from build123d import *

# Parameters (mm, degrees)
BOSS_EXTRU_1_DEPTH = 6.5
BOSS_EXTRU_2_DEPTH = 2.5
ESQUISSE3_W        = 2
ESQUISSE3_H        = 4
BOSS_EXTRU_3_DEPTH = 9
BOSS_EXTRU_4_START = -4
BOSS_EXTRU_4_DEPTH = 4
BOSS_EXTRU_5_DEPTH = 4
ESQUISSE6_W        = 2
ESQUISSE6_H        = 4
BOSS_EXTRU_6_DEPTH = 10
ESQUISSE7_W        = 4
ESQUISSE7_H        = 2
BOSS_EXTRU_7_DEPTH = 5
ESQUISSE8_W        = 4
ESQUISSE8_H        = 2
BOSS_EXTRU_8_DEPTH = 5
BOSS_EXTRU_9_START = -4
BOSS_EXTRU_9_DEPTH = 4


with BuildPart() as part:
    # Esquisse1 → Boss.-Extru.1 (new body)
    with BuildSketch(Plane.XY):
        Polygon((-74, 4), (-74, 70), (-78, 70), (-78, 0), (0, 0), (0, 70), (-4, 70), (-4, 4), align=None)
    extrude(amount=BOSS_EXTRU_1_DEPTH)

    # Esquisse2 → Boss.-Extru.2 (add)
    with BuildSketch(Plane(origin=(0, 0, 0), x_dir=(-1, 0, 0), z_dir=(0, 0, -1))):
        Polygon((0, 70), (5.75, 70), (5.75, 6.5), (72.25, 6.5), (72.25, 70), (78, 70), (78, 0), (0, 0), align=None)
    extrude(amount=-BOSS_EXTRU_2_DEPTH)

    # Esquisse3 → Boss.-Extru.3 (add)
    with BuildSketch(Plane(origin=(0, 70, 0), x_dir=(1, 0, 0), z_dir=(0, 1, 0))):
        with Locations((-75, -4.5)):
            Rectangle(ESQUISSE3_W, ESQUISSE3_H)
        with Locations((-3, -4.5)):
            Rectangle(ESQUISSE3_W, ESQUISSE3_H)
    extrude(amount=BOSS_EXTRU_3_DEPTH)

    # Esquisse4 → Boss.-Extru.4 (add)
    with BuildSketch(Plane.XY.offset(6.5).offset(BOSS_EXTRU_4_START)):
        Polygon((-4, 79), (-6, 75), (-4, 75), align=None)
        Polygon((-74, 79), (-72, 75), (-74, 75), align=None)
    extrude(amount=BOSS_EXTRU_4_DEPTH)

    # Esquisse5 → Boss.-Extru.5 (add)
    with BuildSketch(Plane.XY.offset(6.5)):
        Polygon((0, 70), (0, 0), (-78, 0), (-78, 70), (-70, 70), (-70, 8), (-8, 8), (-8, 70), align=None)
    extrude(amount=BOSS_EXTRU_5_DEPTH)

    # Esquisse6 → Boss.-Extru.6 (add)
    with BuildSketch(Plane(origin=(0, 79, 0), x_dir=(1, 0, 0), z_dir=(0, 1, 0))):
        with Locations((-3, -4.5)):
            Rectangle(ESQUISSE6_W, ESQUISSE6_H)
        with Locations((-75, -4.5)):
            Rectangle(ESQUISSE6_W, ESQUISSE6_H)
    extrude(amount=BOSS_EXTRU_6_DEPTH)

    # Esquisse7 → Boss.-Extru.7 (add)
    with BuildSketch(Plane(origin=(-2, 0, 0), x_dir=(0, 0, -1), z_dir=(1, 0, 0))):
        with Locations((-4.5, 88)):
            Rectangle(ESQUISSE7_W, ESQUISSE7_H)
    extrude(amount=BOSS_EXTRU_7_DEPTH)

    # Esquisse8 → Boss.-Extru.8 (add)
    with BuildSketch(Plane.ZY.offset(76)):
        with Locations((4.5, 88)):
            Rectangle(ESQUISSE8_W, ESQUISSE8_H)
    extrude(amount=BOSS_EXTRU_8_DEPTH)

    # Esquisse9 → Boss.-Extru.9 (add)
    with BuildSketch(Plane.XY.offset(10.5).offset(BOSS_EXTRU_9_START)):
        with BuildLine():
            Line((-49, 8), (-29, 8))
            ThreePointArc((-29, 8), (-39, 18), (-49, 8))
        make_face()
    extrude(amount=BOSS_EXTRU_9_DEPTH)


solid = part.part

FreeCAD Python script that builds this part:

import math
import FreeCAD as App
import Part
import Sketcher
Q = App.Units.Quantity


def add_polygon(sketch, points):
    """Adds a closed chain of lines whose ends are joined by coincident constraints."""
    first, n = sketch.GeometryCount, len(points)
    for a, b in zip(points, points[1:] + points[:1]):
        sketch.addGeometry(Part.LineSegment(App.Vector(*a, 0), App.Vector(*b, 0)), False)
    for i in range(n):
        sketch.addConstraint(Sketcher.Constraint("Coincident", first + i, 2, first + (i + 1) % n, 1))

doc = App.newDocument("Part")
body = doc.addObject("PartDesign::Body", "Body")

# Sketch on XY plane
sketch1 = body.newObject("Sketcher::SketchObject", "Sketch")
sketch1.AttachmentSupport = (doc.getObject("XY_Plane"), [""])
sketch1.MapMode = "FlatFace"
add_polygon(sketch1, [(-74, 4), (-74, 70), (-78, 70), (-78, 0), (0, 0), (0, 70), (-4, 70), (-4, 4)])  # lines 0-7
sketch1.addConstraint(Sketcher.Constraint("Vertical", 0))
sketch1.addConstraint(Sketcher.Constraint("Horizontal", 1))
sketch1.addConstraint(Sketcher.Constraint("Vertical", 2))
sketch1.addConstraint(Sketcher.Constraint("Horizontal", 3))
sketch1.addConstraint(Sketcher.Constraint("Vertical", 4))
sketch1.addConstraint(Sketcher.Constraint("Horizontal", 5))
sketch1.addConstraint(Sketcher.Constraint("Vertical", 6))
sketch1.addConstraint(Sketcher.Constraint("Horizontal", 7))
sketch1.addConstraint(Sketcher.Constraint("Coincident", 3, 2, -1, 1))
sketch1.addConstraint(Sketcher.Constraint("Horizontal", 1, 2, 4, 2))
sketch1.addConstraint(Sketcher.Constraint("Equal", 1, 5))
sketch1.addConstraint(Sketcher.Constraint("Equal", 7, 2))
sketch1.addConstraint(Sketcher.Constraint("DistanceX", 1, 2, 1, 1, Q("4 mm")))
sketch1.addConstraint(Sketcher.Constraint("DistanceX", 3, 1, 3, 2, Q("78 mm")))
sketch1.addConstraint(Sketcher.Constraint("DistanceY", 0, 1, 0, 2, Q("66 mm")))
pad1 = body.newObject("PartDesign::Pad", "Pad")
pad1.Profile = sketch1
pad1.Length = 6.5

# Sketch on XY plane
sketch2 = body.newObject("Sketcher::SketchObject", "Sketch001")
sketch2.AttachmentSupport = (doc.getObject("XY_Plane"), [""])
sketch2.MapMode = "FlatFace"
add_polygon(sketch2, [(-5.75, 70), (0, 70), (0, 0), (-78, 0), (-78, 70), (-72.25, 70), (-72.25, 6.5), (-5.75, 6.5)])  # lines 0-7
sketch2.addConstraint(Sketcher.Constraint("Horizontal", 0))
sketch2.addConstraint(Sketcher.Constraint("Vertical", 1))
sketch2.addConstraint(Sketcher.Constraint("Horizontal", 2))
sketch2.addConstraint(Sketcher.Constraint("Vertical", 3))
sketch2.addConstraint(Sketcher.Constraint("Horizontal", 4))
sketch2.addConstraint(Sketcher.Constraint("Vertical", 5))
sketch2.addConstraint(Sketcher.Constraint("Horizontal", 6))
sketch2.addConstraint(Sketcher.Constraint("Vertical", 7))
sketch2.addConstraint(Sketcher.Constraint("Coincident", 1, 2, -1, 1))
sketch2.addConstraint(Sketcher.Constraint("Horizontal", 0, 2, 3, 2))
sketch2.addConstraint(Sketcher.Constraint("Equal", 0, 4))
sketch2.addConstraint(Sketcher.Constraint("DistanceX", 2, 2, 2, 1, Q("78 mm")))
sketch2.addConstraint(Sketcher.Constraint("DistanceY", 1, 2, 1, 1, Q("70 mm")))
sketch2.addConstraint(Sketcher.Constraint("DistanceX", 6, 1, 6, 2, Q("66.5 mm")))
sketch2.addConstraint(Sketcher.Constraint("DistanceY", 5, 2, 5, 1, Q("63.5 mm")))
pad2 = body.newObject("PartDesign::Pad", "Pad001")
pad2.Profile = sketch2
pad2.Length = 2.5

# Sketch on XZ plane
sketch3 = body.newObject("Sketcher::SketchObject", "Sketch002")
sketch3.AttachmentSupport = (doc.getObject("XZ_Plane"), [""])
sketch3.MapMode = "FlatFace"
sketch3.AttachmentOffset = App.Placement(App.Vector(0, 0, -70), App.Rotation())
add_polygon(sketch3, [(-76, 2.5), (-76, 6.5), (-74, 6.5), (-74, 2.5)])  # lines 0-3
add_polygon(sketch3, [(-4, 2.5), (-4, 6.5), (-2, 6.5), (-2, 2.5)])  # lines 4-7
sketch3.addConstraint(Sketcher.Constraint("Vertical", 0))
sketch3.addConstraint(Sketcher.Constraint("Horizontal", 1))
sketch3.addConstraint(Sketcher.Constraint("Vertical", 2))
sketch3.addConstraint(Sketcher.Constraint("Horizontal", 3))
sketch3.addConstraint(Sketcher.Constraint("Vertical", 4))
sketch3.addConstraint(Sketcher.Constraint("Horizontal", 5))
sketch3.addConstraint(Sketcher.Constraint("Vertical", 6))
sketch3.addConstraint(Sketcher.Constraint("Horizontal", 7))
sketch3.addConstraint(Sketcher.Constraint("Horizontal", 1, 2, 4, 2))
sketch3.addConstraint(Sketcher.Constraint("Horizontal", 3, 2, 6, 2))
sketch3.addConstraint(Sketcher.Constraint("Equal", 3, 5))
sketch3.addConstraint(Sketcher.Constraint("DistanceX", 1, 1, 1, 2, Q("2 mm")))
sketch3.addConstraint(Sketcher.Constraint("DistanceY", 0, 1, 0, 2, Q("4 mm")))
sketch3.addConstraint(Sketcher.Constraint("DistanceX", 0, 2, -1, 1, Q("76 mm")))
sketch3.addConstraint(Sketcher.Constraint("DistanceX", 4, 2, -1, 1, Q("4 mm")))
sketch3.addConstraint(Sketcher.Constraint("DistanceY", -1, 1, 0, 2, Q("6.5 mm")))
pad3 = body.newObject("PartDesign::Pad", "Pad002")
pad3.Profile = sketch3
pad3.Length = 9
pad3.Reversed = True

# Sketch on XY plane
sketch4 = body.newObject("Sketcher::SketchObject", "Sketch003")
sketch4.AttachmentSupport = (doc.getObject("XY_Plane"), [""])
sketch4.MapMode = "FlatFace"
sketch4.AttachmentOffset = App.Placement(App.Vector(0, 0, 2.5), App.Rotation())
add_polygon(sketch4, [(-4, 79), (-6, 75), (-4, 75)])  # lines 0-2
add_polygon(sketch4, [(-72, 75), (-74, 79), (-74, 75)])  # lines 3-5
sketch4.addConstraint(Sketcher.Constraint("Horizontal", 1))
sketch4.addConstraint(Sketcher.Constraint("Vertical", 2))
sketch4.addConstraint(Sketcher.Constraint("Vertical", 4))
sketch4.addConstraint(Sketcher.Constraint("Horizontal", 5))
sketch4.addConstraint(Sketcher.Constraint("Horizontal", 2, 2, 3, 2))
sketch4.addConstraint(Sketcher.Constraint("Horizontal", 1, 2, 4, 2))
sketch4.addConstraint(Sketcher.Constraint("Equal", 1, 5))
sketch4.addConstraint(Sketcher.Constraint("DistanceX", 1, 1, 1, 2, Q("2 mm")))
sketch4.addConstraint(Sketcher.Constraint("DistanceY", 2, 1, 2, 2, Q("4 mm")))
sketch4.addConstraint(Sketcher.Constraint("DistanceX", 0, 2, -1, 1, Q("6 mm")))
sketch4.addConstraint(Sketcher.Constraint("DistanceY", -1, 1, 0, 2, Q("75 mm")))
sketch4.addConstraint(Sketcher.Constraint("DistanceX", 3, 2, -1, 1, Q("74 mm")))
pad4 = body.newObject("PartDesign::Pad", "Pad003")
pad4.Profile = sketch4
pad4.Length = 4

# Sketch on XY plane
sketch5 = body.newObject("Sketcher::SketchObject", "Sketch004")
sketch5.AttachmentSupport = (doc.getObject("XY_Plane"), [""])
sketch5.MapMode = "FlatFace"
sketch5.AttachmentOffset = App.Placement(App.Vector(0, 0, 6.5), App.Rotation())
add_polygon(sketch5, [(0, 0), (0, 70), (-8, 70), (-8, 8), (-70, 8), (-70, 70), (-78, 70), (-78, 0)])  # lines 0-7
sketch5.addConstraint(Sketcher.Constraint("Vertical", 0))
sketch5.addConstraint(Sketcher.Constraint("Horizontal", 1))
sketch5.addConstraint(Sketcher.Constraint("Vertical", 2))
sketch5.addConstraint(Sketcher.Constraint("Horizontal", 3))
sketch5.addConstraint(Sketcher.Constraint("Vertical", 4))
sketch5.addConstraint(Sketcher.Constraint("Horizontal", 5))
sketch5.addConstraint(Sketcher.Constraint("Vertical", 6))
sketch5.addConstraint(Sketcher.Constraint("Horizontal", 7))
sketch5.addConstraint(Sketcher.Constraint("Coincident", 7, 2, -1, 1))
sketch5.addConstraint(Sketcher.Constraint("Horizontal", 1, 2, 4, 2))
sketch5.addConstraint(Sketcher.Constraint("Equal", 1, 5))
sketch5.addConstraint(Sketcher.Constraint("Equal", 3, 2))
sketch5.addConstraint(Sketcher.Constraint("DistanceX", 1, 2, 1, 1, Q("8 mm")))
sketch5.addConstraint(Sketcher.Constraint("DistanceX", 3, 2, 3, 1, Q("62 mm")))
sketch5.addConstraint(Sketcher.Constraint("DistanceY", 0, 1, 0, 2, Q("70 mm")))
pad5 = body.newObject("PartDesign::Pad", "Pad004")
pad5.Profile = sketch5
pad5.Length = 4

# Sketch on XZ plane
sketch6 = body.newObject("Sketcher::SketchObject", "Sketch005")
sketch6.AttachmentSupport = (doc.getObject("XZ_Plane"), [""])
sketch6.MapMode = "FlatFace"
sketch6.AttachmentOffset = App.Placement(App.Vector(0, 0, -79), App.Rotation())
add_polygon(sketch6, [(-4, 2.5), (-4, 6.5), (-2, 6.5), (-2, 2.5)])  # lines 0-3
add_polygon(sketch6, [(-76, 2.5), (-76, 6.5), (-74, 6.5), (-74, 2.5)])  # lines 4-7
sketch6.addConstraint(Sketcher.Constraint("Vertical", 0))
sketch6.addConstraint(Sketcher.Constraint("Horizontal", 1))
sketch6.addConstraint(Sketcher.Constraint("Vertical", 2))
sketch6.addConstraint(Sketcher.Constraint("Horizontal", 3))
sketch6.addConstraint(Sketcher.Constraint("Vertical", 4))
sketch6.addConstraint(Sketcher.Constraint("Horizontal", 5))
sketch6.addConstraint(Sketcher.Constraint("Vertical", 6))
sketch6.addConstraint(Sketcher.Constraint("Horizontal", 7))
sketch6.addConstraint(Sketcher.Constraint("Horizontal", 1, 2, 4, 2))
sketch6.addConstraint(Sketcher.Constraint("Horizontal", 3, 2, 6, 2))
sketch6.addConstraint(Sketcher.Constraint("Equal", 3, 5))
sketch6.addConstraint(Sketcher.Constraint("DistanceX", 1, 1, 1, 2, Q("2 mm")))
sketch6.addConstraint(Sketcher.Constraint("DistanceY", 0, 1, 0, 2, Q("4 mm")))
sketch6.addConstraint(Sketcher.Constraint("DistanceX", 0, 2, -1, 1, Q("4 mm")))
sketch6.addConstraint(Sketcher.Constraint("DistanceX", 4, 2, -1, 1, Q("76 mm")))
sketch6.addConstraint(Sketcher.Constraint("DistanceY", -1, 1, 0, 2, Q("6.5 mm")))
pad6 = body.newObject("PartDesign::Pad", "Pad005")
pad6.Profile = sketch6
pad6.Length = 10
pad6.Reversed = True

# Sketch on YZ plane
sketch7 = body.newObject("Sketcher::SketchObject", "Sketch006")
sketch7.AttachmentSupport = (doc.getObject("YZ_Plane"), [""])
sketch7.MapMode = "FlatFace"
sketch7.AttachmentOffset = App.Placement(App.Vector(0, 0, -2), App.Rotation())
add_polygon(sketch7, [(89, 6.5), (87, 6.5), (87, 2.5), (89, 2.5)])  # lines 0-3
sketch7.addConstraint(Sketcher.Constraint("Horizontal", 0))
sketch7.addConstraint(Sketcher.Constraint("Vertical", 1))
sketch7.addConstraint(Sketcher.Constraint("Horizontal", 2))
sketch7.addConstraint(Sketcher.Constraint("Vertical", 3))
sketch7.addConstraint(Sketcher.Constraint("DistanceX", 0, 2, 0, 1, Q("2 mm")))
sketch7.addConstraint(Sketcher.Constraint("DistanceY", 1, 2, 1, 1, Q("4 mm")))
sketch7.addConstraint(Sketcher.Constraint("DistanceX", -1, 1, 0, 2, Q("87 mm")))
sketch7.addConstraint(Sketcher.Constraint("DistanceY", -1, 1, 0, 2, Q("6.5 mm")))
pad7 = body.newObject("PartDesign::Pad", "Pad006")
pad7.Profile = sketch7
pad7.Length = 5

# Sketch on YZ plane
sketch8 = body.newObject("Sketcher::SketchObject", "Sketch007")
sketch8.AttachmentSupport = (doc.getObject("YZ_Plane"), [""])
sketch8.MapMode = "FlatFace"
sketch8.AttachmentOffset = App.Placement(App.Vector(0, 0, -76), App.Rotation())
add_polygon(sketch8, [(89, 2.5), (87, 2.5), (87, 6.5), (89, 6.5)])  # lines 0-3
sketch8.addConstraint(Sketcher.Constraint("Horizontal", 0))
sketch8.addConstraint(Sketcher.Constraint("Vertical", 1))
sketch8.addConstraint(Sketcher.Constraint("Horizontal", 2))
sketch8.addConstraint(Sketcher.Constraint("Vertical", 3))
sketch8.addConstraint(Sketcher.Constraint("DistanceX", 0, 2, 0, 1, Q("2 mm")))
sketch8.addConstraint(Sketcher.Constraint("DistanceY", 1, 1, 1, 2, Q("4 mm")))
sketch8.addConstraint(Sketcher.Constraint("DistanceX", -1, 1, 0, 2, Q("87 mm")))
sketch8.addConstraint(Sketcher.Constraint("DistanceY", -1, 1, 0, 2, Q("2.5 mm")))
pad8 = body.newObject("PartDesign::Pad", "Pad007")
pad8.Profile = sketch8
pad8.Length = 5
pad8.Reversed = True

# Sketch on XY plane
sketch9 = body.newObject("Sketcher::SketchObject", "Sketch008")
sketch9.AttachmentSupport = (doc.getObject("XY_Plane"), [""])
sketch9.MapMode = "FlatFace"
sketch9.AttachmentOffset = App.Placement(App.Vector(0, 0, 6.5), App.Rotation())
sketch9.addGeometry(Part.LineSegment(App.Vector(-49, 8, 0), App.Vector(-29, 8, 0)), False)
sketch9.addGeometry(Part.ArcOfCircle(Part.Circle(App.Vector(-39, 8, 0), App.Vector(0, 0, 1), 10), math.radians(0), math.radians(180)), False)
sketch9.addConstraint(Sketcher.Constraint("Coincident", 0, 1, 1, 2))
sketch9.addConstraint(Sketcher.Constraint("Coincident", 1, 1, 0, 2))
sketch9.addConstraint(Sketcher.Constraint("Horizontal", 0))
sketch9.addConstraint(Sketcher.Constraint("Horizontal", 1, 3, 0, 1))
sketch9.addConstraint(Sketcher.Constraint("Radius", 1, Q("10 mm")))
sketch9.addConstraint(Sketcher.Constraint("DistanceX", 1, 3, -1, 1, Q("39 mm")))
sketch9.addConstraint(Sketcher.Constraint("DistanceY", -1, 1, 1, 3, Q("8 mm")))
pad9 = body.newObject("PartDesign::Pad", "Pad008")
pad9.Profile = sketch9
pad9.Length = 4

doc.recompute()
